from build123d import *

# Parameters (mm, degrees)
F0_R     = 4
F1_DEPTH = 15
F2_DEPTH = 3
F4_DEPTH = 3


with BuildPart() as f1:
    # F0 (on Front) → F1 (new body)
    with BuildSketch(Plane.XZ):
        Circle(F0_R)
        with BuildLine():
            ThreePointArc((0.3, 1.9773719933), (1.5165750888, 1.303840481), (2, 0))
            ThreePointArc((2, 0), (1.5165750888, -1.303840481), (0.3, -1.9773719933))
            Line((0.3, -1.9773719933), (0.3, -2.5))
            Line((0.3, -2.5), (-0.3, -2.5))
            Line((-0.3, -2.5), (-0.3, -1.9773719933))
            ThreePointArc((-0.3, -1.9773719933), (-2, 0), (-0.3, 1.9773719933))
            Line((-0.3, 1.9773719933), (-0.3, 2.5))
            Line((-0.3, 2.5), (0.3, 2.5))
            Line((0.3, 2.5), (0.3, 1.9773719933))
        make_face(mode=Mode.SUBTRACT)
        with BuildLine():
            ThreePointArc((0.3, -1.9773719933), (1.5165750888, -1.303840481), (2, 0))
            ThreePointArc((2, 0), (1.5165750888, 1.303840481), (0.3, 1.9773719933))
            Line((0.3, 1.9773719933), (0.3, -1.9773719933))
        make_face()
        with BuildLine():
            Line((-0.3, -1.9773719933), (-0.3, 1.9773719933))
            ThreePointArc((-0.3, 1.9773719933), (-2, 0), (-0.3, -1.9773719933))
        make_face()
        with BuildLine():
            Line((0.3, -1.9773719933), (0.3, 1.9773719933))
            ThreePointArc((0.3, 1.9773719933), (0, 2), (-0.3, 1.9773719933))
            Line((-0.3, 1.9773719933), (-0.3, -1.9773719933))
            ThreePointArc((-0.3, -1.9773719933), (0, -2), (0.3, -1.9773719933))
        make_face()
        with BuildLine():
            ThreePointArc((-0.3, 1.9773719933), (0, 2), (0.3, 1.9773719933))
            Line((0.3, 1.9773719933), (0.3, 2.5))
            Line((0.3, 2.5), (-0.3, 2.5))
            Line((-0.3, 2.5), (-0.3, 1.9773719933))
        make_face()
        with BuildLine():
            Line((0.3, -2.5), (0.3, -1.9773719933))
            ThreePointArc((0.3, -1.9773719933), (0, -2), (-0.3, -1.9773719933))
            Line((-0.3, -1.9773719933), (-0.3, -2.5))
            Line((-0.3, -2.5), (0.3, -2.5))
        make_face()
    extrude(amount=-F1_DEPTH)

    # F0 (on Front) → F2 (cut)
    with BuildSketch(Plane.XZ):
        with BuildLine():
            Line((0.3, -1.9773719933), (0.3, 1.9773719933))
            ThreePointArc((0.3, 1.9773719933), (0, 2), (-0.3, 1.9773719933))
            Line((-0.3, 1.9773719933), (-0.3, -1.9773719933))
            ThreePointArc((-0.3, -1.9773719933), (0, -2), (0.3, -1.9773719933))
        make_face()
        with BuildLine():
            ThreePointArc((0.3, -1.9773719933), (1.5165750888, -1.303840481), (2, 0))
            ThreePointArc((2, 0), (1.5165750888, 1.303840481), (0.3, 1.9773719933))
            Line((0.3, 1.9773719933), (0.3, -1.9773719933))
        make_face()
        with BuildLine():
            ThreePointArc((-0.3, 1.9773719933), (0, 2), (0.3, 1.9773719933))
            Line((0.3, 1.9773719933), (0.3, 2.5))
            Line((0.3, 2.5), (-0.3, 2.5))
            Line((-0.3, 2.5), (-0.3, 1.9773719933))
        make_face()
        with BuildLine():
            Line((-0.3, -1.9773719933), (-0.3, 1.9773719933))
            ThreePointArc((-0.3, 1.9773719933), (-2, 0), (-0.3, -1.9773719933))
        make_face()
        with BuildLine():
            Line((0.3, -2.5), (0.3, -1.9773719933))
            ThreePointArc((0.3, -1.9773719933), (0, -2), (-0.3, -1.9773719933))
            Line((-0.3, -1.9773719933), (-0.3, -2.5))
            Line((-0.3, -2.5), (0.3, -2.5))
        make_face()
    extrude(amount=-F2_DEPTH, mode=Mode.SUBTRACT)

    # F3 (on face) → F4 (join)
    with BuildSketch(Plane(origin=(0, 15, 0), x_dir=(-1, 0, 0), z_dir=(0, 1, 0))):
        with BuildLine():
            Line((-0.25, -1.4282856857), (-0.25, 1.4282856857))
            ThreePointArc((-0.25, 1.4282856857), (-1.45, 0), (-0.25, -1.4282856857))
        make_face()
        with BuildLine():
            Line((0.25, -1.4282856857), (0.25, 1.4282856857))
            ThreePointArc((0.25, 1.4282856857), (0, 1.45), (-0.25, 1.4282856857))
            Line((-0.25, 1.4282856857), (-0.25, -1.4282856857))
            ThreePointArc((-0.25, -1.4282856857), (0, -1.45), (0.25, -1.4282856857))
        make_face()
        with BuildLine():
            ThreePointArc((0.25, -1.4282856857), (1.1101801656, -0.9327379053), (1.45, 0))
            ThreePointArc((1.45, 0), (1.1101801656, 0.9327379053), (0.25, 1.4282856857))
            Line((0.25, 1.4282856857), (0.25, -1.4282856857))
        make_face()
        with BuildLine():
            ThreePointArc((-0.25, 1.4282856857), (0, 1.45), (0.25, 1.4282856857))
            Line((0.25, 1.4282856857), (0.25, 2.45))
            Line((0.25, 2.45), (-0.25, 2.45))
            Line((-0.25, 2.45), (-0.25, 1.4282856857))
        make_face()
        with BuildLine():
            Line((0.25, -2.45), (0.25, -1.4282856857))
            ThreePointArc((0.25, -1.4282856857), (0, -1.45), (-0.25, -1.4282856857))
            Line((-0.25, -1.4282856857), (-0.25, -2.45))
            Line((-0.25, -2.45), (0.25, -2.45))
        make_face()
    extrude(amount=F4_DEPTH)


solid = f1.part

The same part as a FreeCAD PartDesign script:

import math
import FreeCAD as App
import Part
import Sketcher

V = App.Vector
Q = App.Units.Quantity

doc = App.newDocument("Part")
params = doc.addObject("Spreadsheet::Sheet", "Params")
for row, (alias, value) in enumerate([
    ("sketch1_diameter", "8 mm"),
    ("pad1_length", "15 mm"),
    ("sketch2_radius", "2 mm"),
    ("sketch2_width", "0.6 mm"),
    ("pocket1_length", "3 mm"),
    ("sketch3_radius", "1.45 mm"),
    ("sketch3_width", "0.5 mm"),
    ("pad2_length", "3 mm"),
], start=1):
    params.set(f"A{row}", alias)
    params.set(f"B{row}", "=" + value)
    params.setAlias(f"B{row}", alias)

body = doc.addObject("PartDesign::Body", "Body")

# Sketch on XZ plane
sketch1 = doc.addObject("Sketcher::SketchObject", "Sketch")
body.addObject(sketch1)
sketch1.AttachmentSupport = (doc.XZ_Plane, [""])
sketch1.MapMode = "FlatFace"
sketch1.addGeometry(Part.Circle(V(0, 0, 0), V(0, 0, 1), 4), False)
sketch1.addConstraint([
    Sketcher.Constraint("Coincident", 0, 3, -1, 1),
    Sketcher.Constraint("Diameter", 0, Q("8 mm")),
])
sketch1.setExpression("Constraints[1]", "Params.sketch1_diameter")
pad1 = doc.addObject("PartDesign::Pad", "Pad")
body.addObject(pad1)
pad1.Profile = sketch1
pad1.setExpression("Length", "Params.pad1_length")
pad1.Reversed = True

# Sketch on XZ plane
sketch2 = doc.addObject("Sketcher::SketchObject", "Sketch001")
body.addObject(sketch2)
sketch2.AttachmentSupport = (doc.XZ_Plane, [""])
sketch2.MapMode = "FlatFace"
sketch2.addGeometry([
    Part.ArcOfCircle(Part.Circle(V(0, 0, 0), V(0, 0, 1), 2), math.radians(-81), math.radians(0)),  # 0
    Part.ArcOfCircle(Part.Circle(V(0, 0, 0), V(0, 0, 1), 2), math.radians(0), math.radians(81)),  # 1
    Part.LineSegment(V(0.3, 2, 0), V(0.3, 2.5, 0)),  # 2
    Part.LineSegment(V(0.3, 2.5, 0), V(-0.3, 2.5, 0)),  # 3
    Part.LineSegment(V(-0.3, 2.5, 0), V(-0.3, 2, 0)),  # 4
    Part.ArcOfCircle(Part.Circle(V(0, 0, 0), V(0, 0, 1), 2), math.radians(99), math.radians(261)),  # 5
    Part.LineSegment(V(-0.3, -2, 0), V(-0.3, -2.5, 0)),  # 6
    Part.LineSegment(V(-0.3, -2.5, 0), V(0.3, -2.5, 0)),  # 7
    Part.LineSegment(V(0.3, -2.5, 0), V(0.3, -2, 0)),  # 8
], False)
sketch2.addConstraint([
    Sketcher.Constraint("Tangent", 0, 2, 1, 1),
    Sketcher.Constraint("Coincident", 1, 2, 2, 1),
    Sketcher.Constraint("Coincident", 2, 2, 3, 1),
    Sketcher.Constraint("Coincident", 3, 2, 4, 1),
    Sketcher.Constraint("Coincident", 4, 2, 5, 1),
    Sketcher.Constraint("Coincident", 5, 2, 6, 1),
    Sketcher.Constraint("Coincident", 6, 2, 7, 1),
    Sketcher.Constraint("Coincident", 7, 2, 8, 1),
    Sketcher.Constraint("Coincident", 8, 2, 0, 1),
    Sketcher.Constraint("Vertical", 2),
    Sketcher.Constraint("Horizontal", 3),
    Sketcher.Constraint("Vertical", 4),
    Sketcher.Constraint("Vertical", 6),
    Sketcher.Constraint("Horizontal", 7),
    Sketcher.Constraint("Vertical", 8),
    Sketcher.Constraint("Coincident", 0, 3, -1, 1),
    Sketcher.Constraint("Coincident", 5, 3, -1, 1),
    Sketcher.Constraint("Equal", 0, 1),
    Sketcher.Constraint("Equal", 1, 5),
    Sketcher.Constraint("Symmetric", 2, 2, 6, 2, -1, 1),
    Sketcher.Constraint("PointOnObject", 0, 2, -1),
    Sketcher.Constraint("Horizontal", 1, 2, 4, 2),
    Sketcher.Constraint("Horizontal", 5, 2, 8, 2),
    Sketcher.Constraint("Radius", 0, Q("2 mm")),
    Sketcher.Constraint("DistanceX", 3, 2, 3, 1, Q("0.6 mm")),
    Sketcher.Constraint("DistanceY", -1, 1, 2, 2, Q("2.5 mm")),
])
sketch2.setExpression("Constraints[23]", "Params.sketch2_radius")
sketch2.setExpression("Constraints[24]", "Params.sketch2_width")
pocket1 = doc.addObject("PartDesign::Pocket", "Pocket")
body.addObject(pocket1)
pocket1.Profile = sketch2
pocket1.setExpression("Length", "Params.pocket1_length")

# Sketch on XZ plane
sketch3 = doc.addObject("Sketcher::SketchObject", "Sketch002")
body.addObject(sketch3)
sketch3.AttachmentSupport = (doc.XZ_Plane, [""])
sketch3.MapMode = "FlatFace"
sketch3.AttachmentOffset = App.Placement(V(0, 0, -15), App.Rotation())
sketch3.addGeometry([
    Part.ArcOfCircle(Part.Circle(V(0, 0, 0), V(0, 0, 1), 1.4), math.radians(-80), math.radians(80)),  # 0
    Part.LineSegment(V(0.2, -1.4, 0), V(0.2, -2.5, 0)),  # 1
    Part.LineSegment(V(0.2, -2.5, 0), V(-0.2, -2.5, 0)),  # 2
    Part.LineSegment(V(-0.2, -2.5, 0), V(-0.2, -1.4, 0)),  # 3
    Part.ArcOfCircle(Part.Circle(V(0, 0, 0), V(0, 0, 1), 1.4), math.radians(180), math.radians(260)),  # 4
    Part.ArcOfCircle(Part.Circle(V(0, 0, 0), V(0, 0, 1), 1.4), math.radians(100), math.radians(180)),  # 5
    Part.LineSegment(V(-0.2, 1.4, 0), V(-0.2, 2.5, 0)),  # 6
    Part.LineSegment(V(-0.2, 2.5, 0), V(0.2, 2.5, 0)),  # 7
    Part.LineSegment(V(0.2, 2.5, 0), V(0.2, 1.4, 0)),  # 8
], False)
sketch3.addConstraint([
    Sketcher.Constraint("Coincident", 0, 1, 1, 1),
    Sketcher.Constraint("Coincident", 1, 2, 2, 1),
    Sketcher.Constraint("Coincident", 2, 2, 3, 1),
    Sketcher.Constraint("Coincident", 3, 2, 4, 2),
    Sketcher.Constraint("Tangent", 4, 1, 5, 2),
    Sketcher.Constraint("Coincident", 5, 1, 6, 1),
    Sketcher.Constraint("Coincident", 6, 2, 7, 1),
    Sketcher.Constraint("Coincident", 7, 2, 8, 1),
    Sketcher.Constraint("Coincident", 8, 2, 0, 2),
    Sketcher.Constraint("Vertical", 1),
    Sketcher.Constraint("Horizontal", 2),
    Sketcher.Constraint("Vertical", 3),
    Sketcher.Constraint("Vertical", 6),
    Sketcher.Constraint("Horizontal", 7),
    Sketcher.Constraint("Vertical", 8),
    Sketcher.Constraint("Coincident", 0, 3, -1, 1),
    Sketcher.Constraint("Coincident", 4, 3, -1, 1),
    Sketcher.Constraint("Equal", 0, 4),
    Sketcher.Constraint("Equal", 4, 5),
    Sketcher.Constraint("Symmetric", 1, 2, 6, 2, -1, 1),
    Sketcher.Constraint("PointOnObject", 4, 1, -1),
    Sketcher.Constraint("Horizontal", 0, 1, 3, 2),
    Sketcher.Constraint("Horizontal", 5, 1, 8, 2),
    Sketcher.Constraint("Radius", 0, Q("1.45 mm")),
    Sketcher.Constraint("DistanceX", 2, 2, 2, 1, Q("0.5 mm")),
    Sketcher.Constraint("DistanceY", 1, 2, -1, 1, Q("2.45 mm")),
])
sketch3.setExpression("Constraints[23]", "Params.sketch3_radius")
sketch3.setExpression("Constraints[24]", "Params.sketch3_width")
pad2 = doc.addObject("PartDesign::Pad", "Pad001")
body.addObject(pad2)
pad2.Profile = sketch3
pad2.setExpression("Length", "Params.pad2_length")
pad2.Reversed = True

doc.recompute()
